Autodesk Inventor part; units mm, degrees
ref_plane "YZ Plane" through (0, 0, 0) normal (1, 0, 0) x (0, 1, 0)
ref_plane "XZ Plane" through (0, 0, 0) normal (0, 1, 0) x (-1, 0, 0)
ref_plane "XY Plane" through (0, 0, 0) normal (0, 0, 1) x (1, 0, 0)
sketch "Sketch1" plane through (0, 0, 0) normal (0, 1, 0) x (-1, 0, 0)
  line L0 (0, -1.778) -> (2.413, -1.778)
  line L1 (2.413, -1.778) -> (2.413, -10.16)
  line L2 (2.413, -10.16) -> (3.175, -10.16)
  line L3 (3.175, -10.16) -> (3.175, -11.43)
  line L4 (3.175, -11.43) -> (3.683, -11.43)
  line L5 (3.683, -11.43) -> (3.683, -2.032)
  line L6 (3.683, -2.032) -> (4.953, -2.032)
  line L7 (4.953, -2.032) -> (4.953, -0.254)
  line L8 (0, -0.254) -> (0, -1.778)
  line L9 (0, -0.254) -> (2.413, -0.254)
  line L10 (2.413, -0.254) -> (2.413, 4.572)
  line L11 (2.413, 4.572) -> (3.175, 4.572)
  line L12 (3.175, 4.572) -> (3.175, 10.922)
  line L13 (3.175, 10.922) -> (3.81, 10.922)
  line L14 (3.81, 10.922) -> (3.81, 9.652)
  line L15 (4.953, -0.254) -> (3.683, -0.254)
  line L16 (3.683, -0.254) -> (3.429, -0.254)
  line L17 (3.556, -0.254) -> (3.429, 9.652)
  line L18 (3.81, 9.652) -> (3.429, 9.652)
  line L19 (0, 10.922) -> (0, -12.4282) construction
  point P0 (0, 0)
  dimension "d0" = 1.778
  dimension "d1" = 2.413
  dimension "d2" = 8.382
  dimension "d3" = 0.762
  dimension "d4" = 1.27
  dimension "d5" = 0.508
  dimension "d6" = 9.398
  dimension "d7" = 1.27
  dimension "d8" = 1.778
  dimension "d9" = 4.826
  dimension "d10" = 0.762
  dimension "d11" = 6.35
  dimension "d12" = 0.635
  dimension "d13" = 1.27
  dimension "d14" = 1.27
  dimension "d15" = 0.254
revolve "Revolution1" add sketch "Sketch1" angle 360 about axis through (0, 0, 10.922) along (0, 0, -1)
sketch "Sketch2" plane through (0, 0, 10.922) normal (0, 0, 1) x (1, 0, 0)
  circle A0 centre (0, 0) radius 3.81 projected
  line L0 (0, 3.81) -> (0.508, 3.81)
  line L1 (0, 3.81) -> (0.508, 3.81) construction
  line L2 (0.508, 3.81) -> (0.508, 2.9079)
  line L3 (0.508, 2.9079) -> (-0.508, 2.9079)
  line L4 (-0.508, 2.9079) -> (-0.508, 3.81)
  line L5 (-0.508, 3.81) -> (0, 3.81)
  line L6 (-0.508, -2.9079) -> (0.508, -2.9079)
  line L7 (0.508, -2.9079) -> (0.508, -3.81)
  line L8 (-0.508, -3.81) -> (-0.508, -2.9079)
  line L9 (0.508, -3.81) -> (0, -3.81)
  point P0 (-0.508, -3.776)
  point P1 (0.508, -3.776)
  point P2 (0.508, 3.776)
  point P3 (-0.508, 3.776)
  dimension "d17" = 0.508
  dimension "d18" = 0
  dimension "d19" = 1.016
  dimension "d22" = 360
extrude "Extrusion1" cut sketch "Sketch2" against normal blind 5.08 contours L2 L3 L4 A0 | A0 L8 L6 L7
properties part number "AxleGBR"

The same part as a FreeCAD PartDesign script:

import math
import FreeCAD as App
import Part
import Sketcher

V = App.Vector
Q = App.Units.Quantity


def add_polygon(sketch, points):
    """Adds a closed chain of lines whose ends are joined by coincident constraints."""
    first, n = sketch.GeometryCount, len(points)
    for a, b in zip(points, points[1:] + points[:1]):
        sketch.addGeometry(Part.LineSegment(App.Vector(*a, 0), App.Vector(*b, 0)), False)
    for i in range(n):
        sketch.addConstraint(Sketcher.Constraint("Coincident", first + i, 2, first + (i + 1) % n, 1))

doc = App.newDocument("Part")
body = doc.addObject("PartDesign::Body", "Body")

# Sketch on XZ plane
sketch1 = body.newObject("Sketcher::SketchObject", "Sketch")
sketch1.AttachmentSupport = (doc.getObject("XZ_Plane"), [""])
sketch1.MapMode = "FlatFace"
add_polygon(sketch1, [(0, -0.25), (0, -1.78), (-2.41, -1.78), (-2.41, -10.16), (-3.17, -10.16), (-3.17, -11.43), (-3.68, -11.43), (-3.68, -2.03), (-4.95, -2.03), (-4.95, -0.25), (-3.56, -0.25), (-3.43, 9.65), (-3.81, 9.65), (-3.81, 10.92), (-3.17, 10.92), (-3.17, 4.57), (-2.41, 4.57), (-2.41, -0.25)])  # lines 0-17
sketch1.addConstraint([
    Sketcher.Constraint("Vertical", 0),
    Sketcher.Constraint("Horizontal", 1),
    Sketcher.Constraint("Vertical", 2),
    Sketcher.Constraint("Horizontal", 3),
    Sketcher.Constraint("Vertical", 4),
    Sketcher.Constraint("Horizontal", 5),
    Sketcher.Constraint("Vertical", 6),
    Sketcher.Constraint("Horizontal", 7),
    Sketcher.Constraint("Vertical", 8),
    Sketcher.Constraint("Horizontal", 9),
    Sketcher.Constraint("Horizontal", 11),
    Sketcher.Constraint("Vertical", 12),
    Sketcher.Constraint("Horizontal", 13),
    Sketcher.Constraint("Vertical", 14),
    Sketcher.Constraint("Horizontal", 15),
    Sketcher.Constraint("Vertical", 16),
    Sketcher.Constraint("Horizontal", 17),
    Sketcher.Constraint("PointOnObject", 0, 2, -2),
    Sketcher.Constraint("Horizontal", 9, 2, 16, 2),
    Sketcher.Constraint("Vertical", 4, 2, 13, 2),
    Sketcher.Constraint("Vertical", 2, 2, 15, 2),
    Sketcher.Constraint("Equal", 7, 4),
    Sketcher.Constraint("Equal", 4, 12),
    Sketcher.Constraint("DistanceX", 3, 2, 3, 1, Q("0.03 in")),
    Sketcher.Constraint("DistanceX", 5, 2, 5, 1, Q("0.02 in")),
    Sketcher.Constraint("DistanceX", 7, 2, 7, 1, Q("0.05 in")),
    Sketcher.Constraint("DistanceY", 2, 2, 2, 1, Q("0.33 in")),
    Sketcher.Constraint("DistanceY", 6, 1, 6, 2, Q("0.37 in")),
    Sketcher.Constraint("DistanceY", 8, 1, 8, 2, Q("0.07 in")),
    Sketcher.Constraint("DistanceY", 14, 2, 14, 1, Q("0.25 in")),
    Sketcher.Constraint("DistanceY", 16, 2, 16, 1, Q("0.19 in")),
    Sketcher.Constraint("DistanceX", 1, 2, 1, 1, Q("0.095 in")),
    Sketcher.Constraint("DistanceX", 13, 1, 13, 2, Q("0.025 in")),
    Sketcher.Constraint("DistanceY", 0, 2, -1, 1, Q("0.07 in")),
    Sketcher.Constraint("DistanceX", 6, 2, 10, 2, Q("0.01 in")),
    Sketcher.Constraint("DistanceX", 11, 2, 9, 2, Q("0.01 in")),
])
revolution = body.newObject("PartDesign::Revolution", "Revolution")
revolution.Profile = sketch1
revolution.ReferenceAxis = (sketch1, ["V_Axis"])
revolution.Angle = 360

# Sketch on XY plane
sketch2 = body.newObject("Sketcher::SketchObject", "Sketch001")
sketch2.AttachmentSupport = (doc.getObject("XY_Plane"), [""])
sketch2.MapMode = "FlatFace"
sketch2.AttachmentOffset = App.Placement(V(0, 0, 0.43 * 25.4), App.Rotation())
sketch2.addGeometry([
    Part.LineSegment(V(0.5, 2.9, 0), V(0.5, 3.8, 0)),  # 0
    Part.ArcOfCircle(Part.Circle(V(0, 0, 0), V(0, 0, 1), 3.8), math.radians(82.34), math.radians(97.66)),  # 1
    Part.LineSegment(V(-0.5, 3.8, 0), V(-0.5, 2.9, 0)),  # 2
    Part.LineSegment(V(-0.5, 2.9, 0), V(0.5, 2.9, 0)),  # 3
    Part.ArcOfCircle(Part.Circle(V(0, 0, 0), V(0, 0, 1), 3.8), math.radians(-97.66), math.radians(-82.34)),  # 4
    Part.LineSegment(V(0.5, -3.8, 0), V(0.5, -2.9, 0)),  # 5
    Part.LineSegment(V(0.5, -2.9, 0), V(-0.5, -2.9, 0)),  # 6
    Part.LineSegment(V(-0.5, -2.9, 0), V(-0.5, -3.8, 0)),  # 7
], False)
sketch2.addConstraint([
    Sketcher.Constraint("Coincident", 0, 2, 1, 1),
    Sketcher.Constraint("Coincident", 1, 2, 2, 1),
    Sketcher.Constraint("Coincident", 2, 2, 3, 1),
    Sketcher.Constraint("Coincident", 3, 2, 0, 1),
    Sketcher.Constraint("Coincident", 4, 2, 5, 1),
    Sketcher.Constraint("Coincident", 5, 2, 6, 1),
    Sketcher.Constraint("Coincident", 6, 2, 7, 1),
    Sketcher.Constraint("Coincident", 7, 2, 4, 1),
    Sketcher.Constraint("Vertical", 0),
    Sketcher.Constraint("Vertical", 2),
    Sketcher.Constraint("Horizontal", 3),
    Sketcher.Constraint("Vertical", 5),
    Sketcher.Constraint("Horizontal", 6),
    Sketcher.Constraint("Vertical", 7),
    Sketcher.Constraint("Coincident", 1, 3, -1, 1),
    Sketcher.Constraint("Coincident", 4, 3, -1, 1),
    Sketcher.Constraint("Equal", 1, 4),
    Sketcher.Constraint("Symmetric", 2, 2, 5, 2, -1, 1),
    Sketcher.Constraint("Horizontal", 0, 2, 1, 2),
    Sketcher.Constraint("Horizontal", 4, 2, 7, 2),
    Sketcher.Constraint("DistanceX", 3, 1, 3, 2, Q("0.04 in")),
    Sketcher.Constraint("Radius", 1, Q("0.15 in")),
    Sketcher.Constraint("DistanceY", 0, 1, 0, 2, Q("0.868 mm")),
])
pocket1 = body.newObject("PartDesign::Pocket", "Pocket")
pocket1.Profile = sketch2
pocket1.Length = Q("0.2 in")

doc.recompute()
